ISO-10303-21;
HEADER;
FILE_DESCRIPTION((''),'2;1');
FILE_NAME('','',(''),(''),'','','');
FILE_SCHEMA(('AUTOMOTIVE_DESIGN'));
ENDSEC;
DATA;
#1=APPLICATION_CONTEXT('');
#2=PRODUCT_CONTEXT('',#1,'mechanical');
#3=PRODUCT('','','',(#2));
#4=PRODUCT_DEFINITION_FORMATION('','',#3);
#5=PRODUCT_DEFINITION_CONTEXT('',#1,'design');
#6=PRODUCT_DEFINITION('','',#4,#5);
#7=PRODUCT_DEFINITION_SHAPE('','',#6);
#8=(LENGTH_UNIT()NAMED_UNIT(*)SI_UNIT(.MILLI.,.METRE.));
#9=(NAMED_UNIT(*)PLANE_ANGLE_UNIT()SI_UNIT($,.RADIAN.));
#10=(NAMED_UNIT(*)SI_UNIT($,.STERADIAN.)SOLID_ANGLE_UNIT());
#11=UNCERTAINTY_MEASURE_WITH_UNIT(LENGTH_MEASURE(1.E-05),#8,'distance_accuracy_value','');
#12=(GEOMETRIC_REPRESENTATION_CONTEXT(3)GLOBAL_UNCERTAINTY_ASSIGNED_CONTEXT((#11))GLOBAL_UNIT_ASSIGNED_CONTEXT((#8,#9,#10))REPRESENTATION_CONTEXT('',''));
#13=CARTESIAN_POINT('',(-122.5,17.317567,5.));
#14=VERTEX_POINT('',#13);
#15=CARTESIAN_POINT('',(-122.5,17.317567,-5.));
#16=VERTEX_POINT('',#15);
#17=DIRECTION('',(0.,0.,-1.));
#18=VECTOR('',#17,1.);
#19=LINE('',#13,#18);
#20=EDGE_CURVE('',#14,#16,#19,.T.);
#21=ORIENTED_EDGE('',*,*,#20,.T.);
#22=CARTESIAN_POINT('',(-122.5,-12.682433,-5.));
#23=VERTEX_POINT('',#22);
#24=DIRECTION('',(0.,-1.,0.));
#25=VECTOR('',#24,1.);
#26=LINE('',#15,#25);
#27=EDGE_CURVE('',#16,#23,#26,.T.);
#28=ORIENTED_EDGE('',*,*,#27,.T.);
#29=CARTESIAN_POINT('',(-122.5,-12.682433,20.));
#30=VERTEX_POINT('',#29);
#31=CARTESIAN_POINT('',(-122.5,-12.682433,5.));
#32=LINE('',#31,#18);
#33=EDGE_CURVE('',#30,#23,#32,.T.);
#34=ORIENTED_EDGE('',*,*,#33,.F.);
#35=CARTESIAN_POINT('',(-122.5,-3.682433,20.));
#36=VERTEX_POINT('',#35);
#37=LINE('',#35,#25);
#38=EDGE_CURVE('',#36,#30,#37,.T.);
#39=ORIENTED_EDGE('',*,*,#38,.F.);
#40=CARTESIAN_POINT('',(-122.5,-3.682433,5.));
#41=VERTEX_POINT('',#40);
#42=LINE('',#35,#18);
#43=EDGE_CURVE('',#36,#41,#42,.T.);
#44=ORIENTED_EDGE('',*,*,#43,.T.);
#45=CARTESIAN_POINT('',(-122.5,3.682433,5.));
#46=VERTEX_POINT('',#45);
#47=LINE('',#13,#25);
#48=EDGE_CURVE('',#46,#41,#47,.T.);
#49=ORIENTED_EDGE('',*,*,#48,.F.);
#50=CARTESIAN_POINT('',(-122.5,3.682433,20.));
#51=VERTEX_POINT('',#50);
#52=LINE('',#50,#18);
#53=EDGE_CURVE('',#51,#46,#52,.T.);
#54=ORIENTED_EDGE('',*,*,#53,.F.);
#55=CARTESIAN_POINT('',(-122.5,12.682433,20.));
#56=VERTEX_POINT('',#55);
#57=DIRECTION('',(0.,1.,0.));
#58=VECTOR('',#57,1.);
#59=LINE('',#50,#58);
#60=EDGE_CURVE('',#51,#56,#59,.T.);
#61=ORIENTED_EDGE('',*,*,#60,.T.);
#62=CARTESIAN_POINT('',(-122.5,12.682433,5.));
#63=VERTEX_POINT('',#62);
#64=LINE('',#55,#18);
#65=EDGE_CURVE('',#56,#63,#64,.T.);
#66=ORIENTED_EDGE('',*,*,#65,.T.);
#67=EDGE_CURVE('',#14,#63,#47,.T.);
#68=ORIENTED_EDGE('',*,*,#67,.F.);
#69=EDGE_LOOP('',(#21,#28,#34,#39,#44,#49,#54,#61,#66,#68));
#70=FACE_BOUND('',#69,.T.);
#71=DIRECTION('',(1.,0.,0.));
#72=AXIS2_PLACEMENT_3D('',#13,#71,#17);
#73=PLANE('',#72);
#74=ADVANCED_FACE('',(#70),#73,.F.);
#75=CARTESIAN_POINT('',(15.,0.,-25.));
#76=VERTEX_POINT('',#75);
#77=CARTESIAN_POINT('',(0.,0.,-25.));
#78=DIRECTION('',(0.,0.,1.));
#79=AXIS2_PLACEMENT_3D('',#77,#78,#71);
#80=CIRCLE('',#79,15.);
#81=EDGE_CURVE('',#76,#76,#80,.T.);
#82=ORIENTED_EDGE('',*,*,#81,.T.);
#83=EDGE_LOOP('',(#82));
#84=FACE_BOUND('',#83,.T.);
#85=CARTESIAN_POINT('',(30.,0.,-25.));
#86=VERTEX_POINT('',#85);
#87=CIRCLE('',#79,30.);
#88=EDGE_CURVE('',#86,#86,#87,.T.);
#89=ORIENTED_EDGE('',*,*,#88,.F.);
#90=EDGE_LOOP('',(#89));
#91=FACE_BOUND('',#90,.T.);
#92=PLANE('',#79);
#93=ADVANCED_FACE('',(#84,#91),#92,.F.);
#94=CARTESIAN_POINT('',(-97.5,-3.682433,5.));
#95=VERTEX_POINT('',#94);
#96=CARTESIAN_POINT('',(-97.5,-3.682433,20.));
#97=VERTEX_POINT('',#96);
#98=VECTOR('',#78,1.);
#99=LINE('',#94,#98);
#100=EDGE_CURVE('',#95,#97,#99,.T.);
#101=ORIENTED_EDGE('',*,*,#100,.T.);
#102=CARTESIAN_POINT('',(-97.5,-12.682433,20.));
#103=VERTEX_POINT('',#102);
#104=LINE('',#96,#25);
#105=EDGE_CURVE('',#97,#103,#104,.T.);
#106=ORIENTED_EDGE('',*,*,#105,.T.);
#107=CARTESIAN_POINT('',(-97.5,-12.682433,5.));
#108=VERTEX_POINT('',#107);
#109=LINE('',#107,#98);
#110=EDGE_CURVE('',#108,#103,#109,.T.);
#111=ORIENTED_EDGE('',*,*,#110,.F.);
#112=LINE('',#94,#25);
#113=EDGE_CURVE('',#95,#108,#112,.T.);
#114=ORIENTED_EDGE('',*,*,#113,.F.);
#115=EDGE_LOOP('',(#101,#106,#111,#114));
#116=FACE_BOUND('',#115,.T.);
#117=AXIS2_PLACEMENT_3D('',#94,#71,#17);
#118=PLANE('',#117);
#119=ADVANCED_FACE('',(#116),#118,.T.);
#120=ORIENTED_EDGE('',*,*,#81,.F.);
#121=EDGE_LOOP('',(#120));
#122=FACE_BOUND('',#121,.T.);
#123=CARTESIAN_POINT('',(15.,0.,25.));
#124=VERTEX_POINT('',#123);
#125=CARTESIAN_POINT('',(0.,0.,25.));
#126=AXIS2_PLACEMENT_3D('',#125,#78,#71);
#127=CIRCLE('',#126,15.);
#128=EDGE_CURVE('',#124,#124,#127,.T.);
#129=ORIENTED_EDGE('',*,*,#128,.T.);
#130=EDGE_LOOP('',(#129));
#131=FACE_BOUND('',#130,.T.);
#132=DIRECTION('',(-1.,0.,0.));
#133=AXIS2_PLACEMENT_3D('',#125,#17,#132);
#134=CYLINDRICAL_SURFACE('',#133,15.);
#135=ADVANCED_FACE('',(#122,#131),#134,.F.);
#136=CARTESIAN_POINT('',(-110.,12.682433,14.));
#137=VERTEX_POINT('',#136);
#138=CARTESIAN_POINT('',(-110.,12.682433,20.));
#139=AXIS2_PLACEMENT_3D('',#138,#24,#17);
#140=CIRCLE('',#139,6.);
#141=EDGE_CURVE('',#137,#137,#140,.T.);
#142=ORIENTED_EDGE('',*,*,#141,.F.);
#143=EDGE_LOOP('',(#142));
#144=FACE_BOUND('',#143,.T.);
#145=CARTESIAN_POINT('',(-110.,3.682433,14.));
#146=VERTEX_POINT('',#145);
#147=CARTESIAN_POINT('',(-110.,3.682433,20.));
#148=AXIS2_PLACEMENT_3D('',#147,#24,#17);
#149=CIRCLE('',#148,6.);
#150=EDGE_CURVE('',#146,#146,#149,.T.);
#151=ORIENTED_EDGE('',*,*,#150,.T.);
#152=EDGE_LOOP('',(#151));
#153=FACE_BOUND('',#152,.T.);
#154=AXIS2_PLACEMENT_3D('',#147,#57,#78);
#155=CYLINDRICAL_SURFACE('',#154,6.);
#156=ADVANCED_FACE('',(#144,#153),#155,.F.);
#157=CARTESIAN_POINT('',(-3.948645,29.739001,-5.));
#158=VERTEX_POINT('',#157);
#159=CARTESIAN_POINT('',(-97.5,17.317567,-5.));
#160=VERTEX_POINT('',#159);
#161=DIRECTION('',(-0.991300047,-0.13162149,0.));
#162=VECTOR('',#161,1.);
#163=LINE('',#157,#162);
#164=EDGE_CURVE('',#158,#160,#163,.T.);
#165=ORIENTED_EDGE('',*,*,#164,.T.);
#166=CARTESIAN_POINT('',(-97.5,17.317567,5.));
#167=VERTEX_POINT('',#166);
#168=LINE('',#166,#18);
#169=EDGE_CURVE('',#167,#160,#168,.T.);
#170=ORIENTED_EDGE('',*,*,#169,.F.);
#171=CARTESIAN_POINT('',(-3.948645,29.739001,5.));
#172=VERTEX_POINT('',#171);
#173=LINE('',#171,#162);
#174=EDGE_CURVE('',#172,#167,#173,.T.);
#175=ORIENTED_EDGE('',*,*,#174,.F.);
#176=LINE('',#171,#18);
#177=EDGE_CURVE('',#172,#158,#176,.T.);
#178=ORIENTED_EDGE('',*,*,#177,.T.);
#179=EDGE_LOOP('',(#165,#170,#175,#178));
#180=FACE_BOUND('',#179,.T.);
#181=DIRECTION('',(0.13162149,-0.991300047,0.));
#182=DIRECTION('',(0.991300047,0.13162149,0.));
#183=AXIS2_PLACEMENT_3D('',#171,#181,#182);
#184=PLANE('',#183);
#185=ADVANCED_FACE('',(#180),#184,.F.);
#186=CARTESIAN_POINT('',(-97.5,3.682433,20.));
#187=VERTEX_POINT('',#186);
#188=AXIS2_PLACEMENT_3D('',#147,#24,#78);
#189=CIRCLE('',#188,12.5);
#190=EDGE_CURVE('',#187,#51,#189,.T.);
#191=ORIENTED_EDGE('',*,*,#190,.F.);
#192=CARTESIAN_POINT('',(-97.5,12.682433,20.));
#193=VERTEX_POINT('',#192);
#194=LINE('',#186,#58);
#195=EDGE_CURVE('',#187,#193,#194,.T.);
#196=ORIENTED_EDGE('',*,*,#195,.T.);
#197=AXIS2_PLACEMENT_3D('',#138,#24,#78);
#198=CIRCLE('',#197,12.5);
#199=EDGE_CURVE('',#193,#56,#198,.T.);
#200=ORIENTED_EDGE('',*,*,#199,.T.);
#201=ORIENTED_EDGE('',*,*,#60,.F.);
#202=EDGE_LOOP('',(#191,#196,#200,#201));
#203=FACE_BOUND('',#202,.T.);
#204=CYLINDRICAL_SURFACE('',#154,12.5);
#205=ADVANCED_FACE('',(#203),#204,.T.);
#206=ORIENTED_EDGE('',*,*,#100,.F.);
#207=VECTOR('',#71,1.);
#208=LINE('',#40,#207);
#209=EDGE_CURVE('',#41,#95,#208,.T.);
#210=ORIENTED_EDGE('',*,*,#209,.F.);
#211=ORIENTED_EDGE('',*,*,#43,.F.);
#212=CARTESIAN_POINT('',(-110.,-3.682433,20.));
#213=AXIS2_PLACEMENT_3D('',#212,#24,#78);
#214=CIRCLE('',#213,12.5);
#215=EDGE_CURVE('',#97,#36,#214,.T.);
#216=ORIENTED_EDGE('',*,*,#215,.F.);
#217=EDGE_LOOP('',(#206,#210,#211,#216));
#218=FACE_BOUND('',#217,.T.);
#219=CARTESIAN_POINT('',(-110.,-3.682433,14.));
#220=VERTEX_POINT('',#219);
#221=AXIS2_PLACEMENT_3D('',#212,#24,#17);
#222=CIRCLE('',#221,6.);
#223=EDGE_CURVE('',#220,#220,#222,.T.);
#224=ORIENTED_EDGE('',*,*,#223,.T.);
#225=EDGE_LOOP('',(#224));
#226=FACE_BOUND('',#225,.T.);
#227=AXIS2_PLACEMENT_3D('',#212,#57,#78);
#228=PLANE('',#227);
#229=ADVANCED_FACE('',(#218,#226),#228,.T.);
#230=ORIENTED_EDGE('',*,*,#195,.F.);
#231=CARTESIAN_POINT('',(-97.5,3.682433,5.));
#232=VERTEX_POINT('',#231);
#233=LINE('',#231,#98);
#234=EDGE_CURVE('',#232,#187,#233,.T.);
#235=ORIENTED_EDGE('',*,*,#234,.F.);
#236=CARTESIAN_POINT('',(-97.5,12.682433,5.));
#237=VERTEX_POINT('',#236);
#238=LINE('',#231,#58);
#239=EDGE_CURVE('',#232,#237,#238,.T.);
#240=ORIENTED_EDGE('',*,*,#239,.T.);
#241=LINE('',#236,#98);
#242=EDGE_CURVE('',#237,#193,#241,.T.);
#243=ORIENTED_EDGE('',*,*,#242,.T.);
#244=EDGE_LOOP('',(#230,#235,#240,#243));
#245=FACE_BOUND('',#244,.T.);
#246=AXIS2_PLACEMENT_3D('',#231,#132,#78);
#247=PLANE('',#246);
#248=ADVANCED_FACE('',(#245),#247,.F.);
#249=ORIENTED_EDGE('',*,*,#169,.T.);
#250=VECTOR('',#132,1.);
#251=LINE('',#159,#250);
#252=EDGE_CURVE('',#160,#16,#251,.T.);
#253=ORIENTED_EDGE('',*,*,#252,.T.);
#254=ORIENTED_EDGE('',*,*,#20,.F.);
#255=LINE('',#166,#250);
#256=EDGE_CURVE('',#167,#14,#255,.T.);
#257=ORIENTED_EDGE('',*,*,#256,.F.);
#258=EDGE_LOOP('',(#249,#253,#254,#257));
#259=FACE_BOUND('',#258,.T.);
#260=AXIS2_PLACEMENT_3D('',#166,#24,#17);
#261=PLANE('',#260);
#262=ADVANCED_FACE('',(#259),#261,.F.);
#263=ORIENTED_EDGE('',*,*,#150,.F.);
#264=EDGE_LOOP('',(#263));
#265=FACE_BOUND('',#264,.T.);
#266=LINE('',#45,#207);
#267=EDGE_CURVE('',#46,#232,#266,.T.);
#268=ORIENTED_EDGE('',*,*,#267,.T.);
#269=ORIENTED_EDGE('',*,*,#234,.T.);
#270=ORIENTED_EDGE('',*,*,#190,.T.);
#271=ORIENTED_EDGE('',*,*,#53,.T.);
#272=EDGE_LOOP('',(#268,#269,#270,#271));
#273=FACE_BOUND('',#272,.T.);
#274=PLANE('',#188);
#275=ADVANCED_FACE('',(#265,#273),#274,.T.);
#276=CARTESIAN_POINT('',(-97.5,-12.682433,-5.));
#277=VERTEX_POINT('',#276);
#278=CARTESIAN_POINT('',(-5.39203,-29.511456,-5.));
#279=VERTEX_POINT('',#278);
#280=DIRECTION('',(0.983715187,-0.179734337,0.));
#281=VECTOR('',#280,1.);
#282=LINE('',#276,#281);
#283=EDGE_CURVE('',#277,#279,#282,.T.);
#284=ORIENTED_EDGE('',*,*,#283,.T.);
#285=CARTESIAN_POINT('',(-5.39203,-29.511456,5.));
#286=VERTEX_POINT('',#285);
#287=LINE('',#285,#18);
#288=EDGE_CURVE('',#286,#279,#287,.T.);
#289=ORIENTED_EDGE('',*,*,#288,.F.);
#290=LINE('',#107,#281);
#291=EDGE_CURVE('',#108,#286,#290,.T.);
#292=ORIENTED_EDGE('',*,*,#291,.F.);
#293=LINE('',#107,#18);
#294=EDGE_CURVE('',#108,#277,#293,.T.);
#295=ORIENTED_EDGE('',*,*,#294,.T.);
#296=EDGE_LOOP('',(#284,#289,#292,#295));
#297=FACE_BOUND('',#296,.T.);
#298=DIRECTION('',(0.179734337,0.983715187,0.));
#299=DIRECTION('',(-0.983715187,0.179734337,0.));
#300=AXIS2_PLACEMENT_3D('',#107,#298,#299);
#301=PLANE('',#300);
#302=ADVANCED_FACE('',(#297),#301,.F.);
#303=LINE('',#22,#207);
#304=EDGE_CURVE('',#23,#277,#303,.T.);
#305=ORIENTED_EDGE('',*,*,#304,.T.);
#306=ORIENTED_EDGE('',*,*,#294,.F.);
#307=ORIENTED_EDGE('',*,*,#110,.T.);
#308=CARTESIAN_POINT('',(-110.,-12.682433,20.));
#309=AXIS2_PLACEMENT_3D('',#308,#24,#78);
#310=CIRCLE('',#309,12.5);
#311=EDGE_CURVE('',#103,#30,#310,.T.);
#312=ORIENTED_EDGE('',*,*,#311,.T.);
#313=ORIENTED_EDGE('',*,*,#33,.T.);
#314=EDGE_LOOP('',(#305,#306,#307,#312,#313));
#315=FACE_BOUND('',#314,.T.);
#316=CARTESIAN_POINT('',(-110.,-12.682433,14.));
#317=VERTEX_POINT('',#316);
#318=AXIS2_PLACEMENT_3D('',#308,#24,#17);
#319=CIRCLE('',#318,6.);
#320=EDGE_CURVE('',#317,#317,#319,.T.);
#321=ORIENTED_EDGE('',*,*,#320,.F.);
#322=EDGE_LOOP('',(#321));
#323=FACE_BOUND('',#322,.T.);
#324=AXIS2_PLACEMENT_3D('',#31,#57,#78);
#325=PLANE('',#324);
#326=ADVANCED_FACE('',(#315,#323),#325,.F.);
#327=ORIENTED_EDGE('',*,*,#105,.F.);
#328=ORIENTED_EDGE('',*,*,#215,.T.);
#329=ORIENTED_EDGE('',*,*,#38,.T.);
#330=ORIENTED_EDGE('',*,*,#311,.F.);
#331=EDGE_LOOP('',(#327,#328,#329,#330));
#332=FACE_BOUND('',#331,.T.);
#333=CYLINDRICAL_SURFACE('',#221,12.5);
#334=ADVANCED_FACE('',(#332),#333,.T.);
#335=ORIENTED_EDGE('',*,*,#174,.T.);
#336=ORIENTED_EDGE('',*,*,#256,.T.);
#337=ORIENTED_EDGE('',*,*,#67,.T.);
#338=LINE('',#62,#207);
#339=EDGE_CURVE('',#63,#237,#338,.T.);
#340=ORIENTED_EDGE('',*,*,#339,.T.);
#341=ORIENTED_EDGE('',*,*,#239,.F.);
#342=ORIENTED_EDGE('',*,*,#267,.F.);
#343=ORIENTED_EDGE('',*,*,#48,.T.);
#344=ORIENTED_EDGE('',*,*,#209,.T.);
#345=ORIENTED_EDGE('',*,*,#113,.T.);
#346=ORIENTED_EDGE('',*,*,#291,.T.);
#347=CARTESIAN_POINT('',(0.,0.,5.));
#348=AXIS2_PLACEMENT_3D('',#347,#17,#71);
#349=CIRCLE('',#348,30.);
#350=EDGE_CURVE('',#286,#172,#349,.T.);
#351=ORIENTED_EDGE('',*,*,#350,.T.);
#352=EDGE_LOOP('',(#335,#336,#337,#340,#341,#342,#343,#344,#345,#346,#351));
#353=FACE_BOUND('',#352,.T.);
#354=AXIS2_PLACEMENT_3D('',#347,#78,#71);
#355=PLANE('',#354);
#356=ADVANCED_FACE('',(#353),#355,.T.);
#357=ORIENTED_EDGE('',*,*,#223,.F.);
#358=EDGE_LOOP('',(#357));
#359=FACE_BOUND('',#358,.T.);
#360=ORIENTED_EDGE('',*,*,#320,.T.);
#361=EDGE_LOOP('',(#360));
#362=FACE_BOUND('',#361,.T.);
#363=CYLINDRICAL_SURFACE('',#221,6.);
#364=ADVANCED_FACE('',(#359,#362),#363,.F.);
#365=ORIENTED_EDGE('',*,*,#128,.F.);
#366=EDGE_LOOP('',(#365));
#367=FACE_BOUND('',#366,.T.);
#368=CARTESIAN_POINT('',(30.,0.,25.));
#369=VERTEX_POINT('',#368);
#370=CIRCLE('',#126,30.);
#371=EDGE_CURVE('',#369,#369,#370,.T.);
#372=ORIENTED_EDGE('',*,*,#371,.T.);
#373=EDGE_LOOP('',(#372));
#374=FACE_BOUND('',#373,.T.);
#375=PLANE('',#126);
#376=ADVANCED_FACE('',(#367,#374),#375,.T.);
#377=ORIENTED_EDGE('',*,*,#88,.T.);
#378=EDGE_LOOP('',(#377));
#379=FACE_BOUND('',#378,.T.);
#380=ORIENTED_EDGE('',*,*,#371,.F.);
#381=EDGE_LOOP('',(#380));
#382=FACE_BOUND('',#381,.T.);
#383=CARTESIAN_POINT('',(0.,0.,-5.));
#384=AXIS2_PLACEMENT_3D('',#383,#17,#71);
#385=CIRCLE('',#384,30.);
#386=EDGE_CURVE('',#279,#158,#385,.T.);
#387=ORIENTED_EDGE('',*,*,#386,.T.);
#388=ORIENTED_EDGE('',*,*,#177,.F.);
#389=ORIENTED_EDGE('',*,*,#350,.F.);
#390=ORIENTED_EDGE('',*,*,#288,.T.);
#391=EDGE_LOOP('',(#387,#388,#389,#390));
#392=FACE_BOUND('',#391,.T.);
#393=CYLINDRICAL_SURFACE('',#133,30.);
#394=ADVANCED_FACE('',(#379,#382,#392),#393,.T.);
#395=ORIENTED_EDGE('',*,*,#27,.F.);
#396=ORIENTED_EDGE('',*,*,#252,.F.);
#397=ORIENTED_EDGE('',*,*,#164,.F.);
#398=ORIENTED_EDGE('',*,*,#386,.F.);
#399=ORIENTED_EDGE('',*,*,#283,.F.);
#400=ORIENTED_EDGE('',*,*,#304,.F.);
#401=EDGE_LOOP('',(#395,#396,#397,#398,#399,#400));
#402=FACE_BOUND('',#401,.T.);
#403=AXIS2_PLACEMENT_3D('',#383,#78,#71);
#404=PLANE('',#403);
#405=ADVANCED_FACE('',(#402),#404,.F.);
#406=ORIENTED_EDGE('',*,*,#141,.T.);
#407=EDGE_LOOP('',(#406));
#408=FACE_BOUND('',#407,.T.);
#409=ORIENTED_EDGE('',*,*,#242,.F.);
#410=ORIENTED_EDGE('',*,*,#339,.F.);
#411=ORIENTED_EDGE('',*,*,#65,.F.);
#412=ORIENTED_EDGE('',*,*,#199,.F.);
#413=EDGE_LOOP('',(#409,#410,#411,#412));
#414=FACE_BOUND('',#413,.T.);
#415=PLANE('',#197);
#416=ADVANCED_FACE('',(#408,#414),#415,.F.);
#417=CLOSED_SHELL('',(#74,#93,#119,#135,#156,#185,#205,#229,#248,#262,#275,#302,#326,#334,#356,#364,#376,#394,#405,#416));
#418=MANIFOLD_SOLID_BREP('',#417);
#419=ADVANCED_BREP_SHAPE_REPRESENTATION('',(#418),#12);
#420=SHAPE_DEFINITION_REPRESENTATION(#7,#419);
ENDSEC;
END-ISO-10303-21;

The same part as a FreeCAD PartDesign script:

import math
import FreeCAD as App
import Part
import Sketcher
from FreeCAD import Vector

doc = App.newDocument("Part")
body = doc.addObject("PartDesign::Body", "Body")

# Sketch on XY plane
sketch1 = body.newObject("Sketcher::SketchObject", "Sketch")
sketch1.AttachmentSupport = (doc.getObject("XY_Plane"), [""])
sketch1.MapMode = "FlatFace"
sketch1.addGeometry([
    Part.Circle(Vector(0, 0, 0), Vector(0, 0, 1), 30),
    Part.Circle(Vector(0, 0, 0), Vector(0, 0, 1), 15),
], False)
sketch1.addConstraint([
    Sketcher.Constraint("Coincident", 0, 3, -1, 1),
    Sketcher.Constraint("Coincident", 1, 3, -1, 1),
    Sketcher.Constraint("Diameter", 0, 60.0),
    Sketcher.Constraint("Diameter", 1, 30.0),
])
pad1 = body.newObject("PartDesign::Pad", "Pad")
pad1.Profile = sketch1
pad1.Length = 50
pad1.Midplane = True

# Sketch on XY plane
sketch2 = body.newObject("Sketcher::SketchObject", "Sketch001")
sketch2.AttachmentSupport = (doc.getObject("XY_Plane"), [""])
sketch2.MapMode = "FlatFace"
sketch2.addGeometry([
    Part.LineSegment(Vector(-3.948645, 29.739001, 0), Vector(-97.5, 17.317567, 0)),  # 0
    Part.LineSegment(Vector(-97.5, 17.317567, 0), Vector(-122.5, 17.317567, 0)),  # 1
    Part.LineSegment(Vector(-122.5, 17.317567, 0), Vector(-122.5, -12.682433, 0)),  # 2
    Part.LineSegment(Vector(-122.5, -12.682433, 0), Vector(-97.5, -12.682433, 0)),  # 3
    Part.LineSegment(Vector(-97.5, -12.682433, 0), Vector(-5.39203, -29.511456, 0)),  # 4
    Part.ArcOfCircle(Part.Circle(Vector(0, 0, 0), Vector(0, 0, 1), 30), math.radians(97.563302), math.radians(259.645714)),  # 5
], False)
sketch2.addConstraint([
    Sketcher.Constraint("Coincident", 0, 2, 1, 1),
    Sketcher.Constraint("Coincident", 1, 2, 2, 1),
    Sketcher.Constraint("Coincident", 2, 2, 3, 1),
    Sketcher.Constraint("Coincident", 3, 2, 4, 1),
    Sketcher.Constraint("Tangent", 4, 2, 5, 2),
    Sketcher.Constraint("Tangent", 5, 1, 0, 1),
    Sketcher.Constraint("Horizontal", 1),
    Sketcher.Constraint("Vertical", 2),
    Sketcher.Constraint("Horizontal", 3),
    Sketcher.Constraint("Coincident", 5, 3, -1, 1),
    Sketcher.Constraint("Vertical", 0, 2, 3, 2),
    Sketcher.Constraint("Radius", 5, 30.0),
    Sketcher.Constraint("DistanceX", 1, 2, 1, 1, 25.0),
    Sketcher.Constraint("DistanceY", 2, 2, 2, 1, 30.0),
    Sketcher.Constraint("DistanceX", 0, 2, -1, 1, 97.5),
    Sketcher.Constraint("DistanceY", -1, 1, 5, 1, 29.739001),
])
pad2 = body.newObject("PartDesign::Pad", "Pad001")
pad2.Profile = sketch2
pad2.Length = 10
pad2.Midplane = True

# Sketch on XZ plane
sketch3 = body.newObject("Sketcher::SketchObject", "Sketch002")
sketch3.AttachmentSupport = (doc.getObject("XZ_Plane"), [""])
sketch3.MapMode = "FlatFace"
sketch3.AttachmentOffset = App.Placement(Vector(0, 0, 12.682433), App.Rotation())
sketch3.addGeometry([
    Part.LineSegment(Vector(-122.5, 5, 0), Vector(-97.5, 5, 0)),  # 0
    Part.LineSegment(Vector(-97.5, 5, 0), Vector(-97.5, 20, 0)),  # 1
    Part.ArcOfCircle(Part.Circle(Vector(-110, 20, 0), Vector(0, 0, 1), 12.5), math.radians(0), math.radians(180)),  # 2
    Part.LineSegment(Vector(-122.5, 20, 0), Vector(-122.5, 5, 0)),  # 3
    Part.Circle(Vector(-110, 20, 0), Vector(0, 0, 1), 6),  # 4
], False)
sketch3.addConstraint([
    Sketcher.Constraint("Coincident", 0, 2, 1, 1),
    Sketcher.Constraint("Tangent", 1, 2, 2, 1),
    Sketcher.Constraint("Tangent", 2, 2, 3, 1),
    Sketcher.Constraint("Coincident", 3, 2, 0, 1),
    Sketcher.Constraint("Horizontal", 0),
    Sketcher.Constraint("Vertical", 1),
    Sketcher.Constraint("Vertical", 3),
    Sketcher.Constraint("Coincident", 4, 3, 2, 3),
    Sketcher.Constraint("Diameter", 4, 12.0),
    Sketcher.Constraint("Radius", 2, 12.5),
    Sketcher.Constraint("DistanceY", 1, 1, 1, 2, 15.0),
    Sketcher.Constraint("DistanceX", 2, 3, -1, 1, 110.0),
    Sketcher.Constraint("DistanceY", -1, 1, 2, 3, 20.0),
])
pad3 = body.newObject("PartDesign::Pad", "Pad002")
pad3.Profile = sketch3
pad3.Length = 9
pad3.Reversed = True
doc.recompute()

mirrored = body.newObject("PartDesign::Mirrored", "Mirrored")
mirrored.Originals = [pad3]
mirrored.MirrorPlane = (doc.getObject("XZ_Plane"), [""])
body.Tip = mirrored

doc.recompute()
